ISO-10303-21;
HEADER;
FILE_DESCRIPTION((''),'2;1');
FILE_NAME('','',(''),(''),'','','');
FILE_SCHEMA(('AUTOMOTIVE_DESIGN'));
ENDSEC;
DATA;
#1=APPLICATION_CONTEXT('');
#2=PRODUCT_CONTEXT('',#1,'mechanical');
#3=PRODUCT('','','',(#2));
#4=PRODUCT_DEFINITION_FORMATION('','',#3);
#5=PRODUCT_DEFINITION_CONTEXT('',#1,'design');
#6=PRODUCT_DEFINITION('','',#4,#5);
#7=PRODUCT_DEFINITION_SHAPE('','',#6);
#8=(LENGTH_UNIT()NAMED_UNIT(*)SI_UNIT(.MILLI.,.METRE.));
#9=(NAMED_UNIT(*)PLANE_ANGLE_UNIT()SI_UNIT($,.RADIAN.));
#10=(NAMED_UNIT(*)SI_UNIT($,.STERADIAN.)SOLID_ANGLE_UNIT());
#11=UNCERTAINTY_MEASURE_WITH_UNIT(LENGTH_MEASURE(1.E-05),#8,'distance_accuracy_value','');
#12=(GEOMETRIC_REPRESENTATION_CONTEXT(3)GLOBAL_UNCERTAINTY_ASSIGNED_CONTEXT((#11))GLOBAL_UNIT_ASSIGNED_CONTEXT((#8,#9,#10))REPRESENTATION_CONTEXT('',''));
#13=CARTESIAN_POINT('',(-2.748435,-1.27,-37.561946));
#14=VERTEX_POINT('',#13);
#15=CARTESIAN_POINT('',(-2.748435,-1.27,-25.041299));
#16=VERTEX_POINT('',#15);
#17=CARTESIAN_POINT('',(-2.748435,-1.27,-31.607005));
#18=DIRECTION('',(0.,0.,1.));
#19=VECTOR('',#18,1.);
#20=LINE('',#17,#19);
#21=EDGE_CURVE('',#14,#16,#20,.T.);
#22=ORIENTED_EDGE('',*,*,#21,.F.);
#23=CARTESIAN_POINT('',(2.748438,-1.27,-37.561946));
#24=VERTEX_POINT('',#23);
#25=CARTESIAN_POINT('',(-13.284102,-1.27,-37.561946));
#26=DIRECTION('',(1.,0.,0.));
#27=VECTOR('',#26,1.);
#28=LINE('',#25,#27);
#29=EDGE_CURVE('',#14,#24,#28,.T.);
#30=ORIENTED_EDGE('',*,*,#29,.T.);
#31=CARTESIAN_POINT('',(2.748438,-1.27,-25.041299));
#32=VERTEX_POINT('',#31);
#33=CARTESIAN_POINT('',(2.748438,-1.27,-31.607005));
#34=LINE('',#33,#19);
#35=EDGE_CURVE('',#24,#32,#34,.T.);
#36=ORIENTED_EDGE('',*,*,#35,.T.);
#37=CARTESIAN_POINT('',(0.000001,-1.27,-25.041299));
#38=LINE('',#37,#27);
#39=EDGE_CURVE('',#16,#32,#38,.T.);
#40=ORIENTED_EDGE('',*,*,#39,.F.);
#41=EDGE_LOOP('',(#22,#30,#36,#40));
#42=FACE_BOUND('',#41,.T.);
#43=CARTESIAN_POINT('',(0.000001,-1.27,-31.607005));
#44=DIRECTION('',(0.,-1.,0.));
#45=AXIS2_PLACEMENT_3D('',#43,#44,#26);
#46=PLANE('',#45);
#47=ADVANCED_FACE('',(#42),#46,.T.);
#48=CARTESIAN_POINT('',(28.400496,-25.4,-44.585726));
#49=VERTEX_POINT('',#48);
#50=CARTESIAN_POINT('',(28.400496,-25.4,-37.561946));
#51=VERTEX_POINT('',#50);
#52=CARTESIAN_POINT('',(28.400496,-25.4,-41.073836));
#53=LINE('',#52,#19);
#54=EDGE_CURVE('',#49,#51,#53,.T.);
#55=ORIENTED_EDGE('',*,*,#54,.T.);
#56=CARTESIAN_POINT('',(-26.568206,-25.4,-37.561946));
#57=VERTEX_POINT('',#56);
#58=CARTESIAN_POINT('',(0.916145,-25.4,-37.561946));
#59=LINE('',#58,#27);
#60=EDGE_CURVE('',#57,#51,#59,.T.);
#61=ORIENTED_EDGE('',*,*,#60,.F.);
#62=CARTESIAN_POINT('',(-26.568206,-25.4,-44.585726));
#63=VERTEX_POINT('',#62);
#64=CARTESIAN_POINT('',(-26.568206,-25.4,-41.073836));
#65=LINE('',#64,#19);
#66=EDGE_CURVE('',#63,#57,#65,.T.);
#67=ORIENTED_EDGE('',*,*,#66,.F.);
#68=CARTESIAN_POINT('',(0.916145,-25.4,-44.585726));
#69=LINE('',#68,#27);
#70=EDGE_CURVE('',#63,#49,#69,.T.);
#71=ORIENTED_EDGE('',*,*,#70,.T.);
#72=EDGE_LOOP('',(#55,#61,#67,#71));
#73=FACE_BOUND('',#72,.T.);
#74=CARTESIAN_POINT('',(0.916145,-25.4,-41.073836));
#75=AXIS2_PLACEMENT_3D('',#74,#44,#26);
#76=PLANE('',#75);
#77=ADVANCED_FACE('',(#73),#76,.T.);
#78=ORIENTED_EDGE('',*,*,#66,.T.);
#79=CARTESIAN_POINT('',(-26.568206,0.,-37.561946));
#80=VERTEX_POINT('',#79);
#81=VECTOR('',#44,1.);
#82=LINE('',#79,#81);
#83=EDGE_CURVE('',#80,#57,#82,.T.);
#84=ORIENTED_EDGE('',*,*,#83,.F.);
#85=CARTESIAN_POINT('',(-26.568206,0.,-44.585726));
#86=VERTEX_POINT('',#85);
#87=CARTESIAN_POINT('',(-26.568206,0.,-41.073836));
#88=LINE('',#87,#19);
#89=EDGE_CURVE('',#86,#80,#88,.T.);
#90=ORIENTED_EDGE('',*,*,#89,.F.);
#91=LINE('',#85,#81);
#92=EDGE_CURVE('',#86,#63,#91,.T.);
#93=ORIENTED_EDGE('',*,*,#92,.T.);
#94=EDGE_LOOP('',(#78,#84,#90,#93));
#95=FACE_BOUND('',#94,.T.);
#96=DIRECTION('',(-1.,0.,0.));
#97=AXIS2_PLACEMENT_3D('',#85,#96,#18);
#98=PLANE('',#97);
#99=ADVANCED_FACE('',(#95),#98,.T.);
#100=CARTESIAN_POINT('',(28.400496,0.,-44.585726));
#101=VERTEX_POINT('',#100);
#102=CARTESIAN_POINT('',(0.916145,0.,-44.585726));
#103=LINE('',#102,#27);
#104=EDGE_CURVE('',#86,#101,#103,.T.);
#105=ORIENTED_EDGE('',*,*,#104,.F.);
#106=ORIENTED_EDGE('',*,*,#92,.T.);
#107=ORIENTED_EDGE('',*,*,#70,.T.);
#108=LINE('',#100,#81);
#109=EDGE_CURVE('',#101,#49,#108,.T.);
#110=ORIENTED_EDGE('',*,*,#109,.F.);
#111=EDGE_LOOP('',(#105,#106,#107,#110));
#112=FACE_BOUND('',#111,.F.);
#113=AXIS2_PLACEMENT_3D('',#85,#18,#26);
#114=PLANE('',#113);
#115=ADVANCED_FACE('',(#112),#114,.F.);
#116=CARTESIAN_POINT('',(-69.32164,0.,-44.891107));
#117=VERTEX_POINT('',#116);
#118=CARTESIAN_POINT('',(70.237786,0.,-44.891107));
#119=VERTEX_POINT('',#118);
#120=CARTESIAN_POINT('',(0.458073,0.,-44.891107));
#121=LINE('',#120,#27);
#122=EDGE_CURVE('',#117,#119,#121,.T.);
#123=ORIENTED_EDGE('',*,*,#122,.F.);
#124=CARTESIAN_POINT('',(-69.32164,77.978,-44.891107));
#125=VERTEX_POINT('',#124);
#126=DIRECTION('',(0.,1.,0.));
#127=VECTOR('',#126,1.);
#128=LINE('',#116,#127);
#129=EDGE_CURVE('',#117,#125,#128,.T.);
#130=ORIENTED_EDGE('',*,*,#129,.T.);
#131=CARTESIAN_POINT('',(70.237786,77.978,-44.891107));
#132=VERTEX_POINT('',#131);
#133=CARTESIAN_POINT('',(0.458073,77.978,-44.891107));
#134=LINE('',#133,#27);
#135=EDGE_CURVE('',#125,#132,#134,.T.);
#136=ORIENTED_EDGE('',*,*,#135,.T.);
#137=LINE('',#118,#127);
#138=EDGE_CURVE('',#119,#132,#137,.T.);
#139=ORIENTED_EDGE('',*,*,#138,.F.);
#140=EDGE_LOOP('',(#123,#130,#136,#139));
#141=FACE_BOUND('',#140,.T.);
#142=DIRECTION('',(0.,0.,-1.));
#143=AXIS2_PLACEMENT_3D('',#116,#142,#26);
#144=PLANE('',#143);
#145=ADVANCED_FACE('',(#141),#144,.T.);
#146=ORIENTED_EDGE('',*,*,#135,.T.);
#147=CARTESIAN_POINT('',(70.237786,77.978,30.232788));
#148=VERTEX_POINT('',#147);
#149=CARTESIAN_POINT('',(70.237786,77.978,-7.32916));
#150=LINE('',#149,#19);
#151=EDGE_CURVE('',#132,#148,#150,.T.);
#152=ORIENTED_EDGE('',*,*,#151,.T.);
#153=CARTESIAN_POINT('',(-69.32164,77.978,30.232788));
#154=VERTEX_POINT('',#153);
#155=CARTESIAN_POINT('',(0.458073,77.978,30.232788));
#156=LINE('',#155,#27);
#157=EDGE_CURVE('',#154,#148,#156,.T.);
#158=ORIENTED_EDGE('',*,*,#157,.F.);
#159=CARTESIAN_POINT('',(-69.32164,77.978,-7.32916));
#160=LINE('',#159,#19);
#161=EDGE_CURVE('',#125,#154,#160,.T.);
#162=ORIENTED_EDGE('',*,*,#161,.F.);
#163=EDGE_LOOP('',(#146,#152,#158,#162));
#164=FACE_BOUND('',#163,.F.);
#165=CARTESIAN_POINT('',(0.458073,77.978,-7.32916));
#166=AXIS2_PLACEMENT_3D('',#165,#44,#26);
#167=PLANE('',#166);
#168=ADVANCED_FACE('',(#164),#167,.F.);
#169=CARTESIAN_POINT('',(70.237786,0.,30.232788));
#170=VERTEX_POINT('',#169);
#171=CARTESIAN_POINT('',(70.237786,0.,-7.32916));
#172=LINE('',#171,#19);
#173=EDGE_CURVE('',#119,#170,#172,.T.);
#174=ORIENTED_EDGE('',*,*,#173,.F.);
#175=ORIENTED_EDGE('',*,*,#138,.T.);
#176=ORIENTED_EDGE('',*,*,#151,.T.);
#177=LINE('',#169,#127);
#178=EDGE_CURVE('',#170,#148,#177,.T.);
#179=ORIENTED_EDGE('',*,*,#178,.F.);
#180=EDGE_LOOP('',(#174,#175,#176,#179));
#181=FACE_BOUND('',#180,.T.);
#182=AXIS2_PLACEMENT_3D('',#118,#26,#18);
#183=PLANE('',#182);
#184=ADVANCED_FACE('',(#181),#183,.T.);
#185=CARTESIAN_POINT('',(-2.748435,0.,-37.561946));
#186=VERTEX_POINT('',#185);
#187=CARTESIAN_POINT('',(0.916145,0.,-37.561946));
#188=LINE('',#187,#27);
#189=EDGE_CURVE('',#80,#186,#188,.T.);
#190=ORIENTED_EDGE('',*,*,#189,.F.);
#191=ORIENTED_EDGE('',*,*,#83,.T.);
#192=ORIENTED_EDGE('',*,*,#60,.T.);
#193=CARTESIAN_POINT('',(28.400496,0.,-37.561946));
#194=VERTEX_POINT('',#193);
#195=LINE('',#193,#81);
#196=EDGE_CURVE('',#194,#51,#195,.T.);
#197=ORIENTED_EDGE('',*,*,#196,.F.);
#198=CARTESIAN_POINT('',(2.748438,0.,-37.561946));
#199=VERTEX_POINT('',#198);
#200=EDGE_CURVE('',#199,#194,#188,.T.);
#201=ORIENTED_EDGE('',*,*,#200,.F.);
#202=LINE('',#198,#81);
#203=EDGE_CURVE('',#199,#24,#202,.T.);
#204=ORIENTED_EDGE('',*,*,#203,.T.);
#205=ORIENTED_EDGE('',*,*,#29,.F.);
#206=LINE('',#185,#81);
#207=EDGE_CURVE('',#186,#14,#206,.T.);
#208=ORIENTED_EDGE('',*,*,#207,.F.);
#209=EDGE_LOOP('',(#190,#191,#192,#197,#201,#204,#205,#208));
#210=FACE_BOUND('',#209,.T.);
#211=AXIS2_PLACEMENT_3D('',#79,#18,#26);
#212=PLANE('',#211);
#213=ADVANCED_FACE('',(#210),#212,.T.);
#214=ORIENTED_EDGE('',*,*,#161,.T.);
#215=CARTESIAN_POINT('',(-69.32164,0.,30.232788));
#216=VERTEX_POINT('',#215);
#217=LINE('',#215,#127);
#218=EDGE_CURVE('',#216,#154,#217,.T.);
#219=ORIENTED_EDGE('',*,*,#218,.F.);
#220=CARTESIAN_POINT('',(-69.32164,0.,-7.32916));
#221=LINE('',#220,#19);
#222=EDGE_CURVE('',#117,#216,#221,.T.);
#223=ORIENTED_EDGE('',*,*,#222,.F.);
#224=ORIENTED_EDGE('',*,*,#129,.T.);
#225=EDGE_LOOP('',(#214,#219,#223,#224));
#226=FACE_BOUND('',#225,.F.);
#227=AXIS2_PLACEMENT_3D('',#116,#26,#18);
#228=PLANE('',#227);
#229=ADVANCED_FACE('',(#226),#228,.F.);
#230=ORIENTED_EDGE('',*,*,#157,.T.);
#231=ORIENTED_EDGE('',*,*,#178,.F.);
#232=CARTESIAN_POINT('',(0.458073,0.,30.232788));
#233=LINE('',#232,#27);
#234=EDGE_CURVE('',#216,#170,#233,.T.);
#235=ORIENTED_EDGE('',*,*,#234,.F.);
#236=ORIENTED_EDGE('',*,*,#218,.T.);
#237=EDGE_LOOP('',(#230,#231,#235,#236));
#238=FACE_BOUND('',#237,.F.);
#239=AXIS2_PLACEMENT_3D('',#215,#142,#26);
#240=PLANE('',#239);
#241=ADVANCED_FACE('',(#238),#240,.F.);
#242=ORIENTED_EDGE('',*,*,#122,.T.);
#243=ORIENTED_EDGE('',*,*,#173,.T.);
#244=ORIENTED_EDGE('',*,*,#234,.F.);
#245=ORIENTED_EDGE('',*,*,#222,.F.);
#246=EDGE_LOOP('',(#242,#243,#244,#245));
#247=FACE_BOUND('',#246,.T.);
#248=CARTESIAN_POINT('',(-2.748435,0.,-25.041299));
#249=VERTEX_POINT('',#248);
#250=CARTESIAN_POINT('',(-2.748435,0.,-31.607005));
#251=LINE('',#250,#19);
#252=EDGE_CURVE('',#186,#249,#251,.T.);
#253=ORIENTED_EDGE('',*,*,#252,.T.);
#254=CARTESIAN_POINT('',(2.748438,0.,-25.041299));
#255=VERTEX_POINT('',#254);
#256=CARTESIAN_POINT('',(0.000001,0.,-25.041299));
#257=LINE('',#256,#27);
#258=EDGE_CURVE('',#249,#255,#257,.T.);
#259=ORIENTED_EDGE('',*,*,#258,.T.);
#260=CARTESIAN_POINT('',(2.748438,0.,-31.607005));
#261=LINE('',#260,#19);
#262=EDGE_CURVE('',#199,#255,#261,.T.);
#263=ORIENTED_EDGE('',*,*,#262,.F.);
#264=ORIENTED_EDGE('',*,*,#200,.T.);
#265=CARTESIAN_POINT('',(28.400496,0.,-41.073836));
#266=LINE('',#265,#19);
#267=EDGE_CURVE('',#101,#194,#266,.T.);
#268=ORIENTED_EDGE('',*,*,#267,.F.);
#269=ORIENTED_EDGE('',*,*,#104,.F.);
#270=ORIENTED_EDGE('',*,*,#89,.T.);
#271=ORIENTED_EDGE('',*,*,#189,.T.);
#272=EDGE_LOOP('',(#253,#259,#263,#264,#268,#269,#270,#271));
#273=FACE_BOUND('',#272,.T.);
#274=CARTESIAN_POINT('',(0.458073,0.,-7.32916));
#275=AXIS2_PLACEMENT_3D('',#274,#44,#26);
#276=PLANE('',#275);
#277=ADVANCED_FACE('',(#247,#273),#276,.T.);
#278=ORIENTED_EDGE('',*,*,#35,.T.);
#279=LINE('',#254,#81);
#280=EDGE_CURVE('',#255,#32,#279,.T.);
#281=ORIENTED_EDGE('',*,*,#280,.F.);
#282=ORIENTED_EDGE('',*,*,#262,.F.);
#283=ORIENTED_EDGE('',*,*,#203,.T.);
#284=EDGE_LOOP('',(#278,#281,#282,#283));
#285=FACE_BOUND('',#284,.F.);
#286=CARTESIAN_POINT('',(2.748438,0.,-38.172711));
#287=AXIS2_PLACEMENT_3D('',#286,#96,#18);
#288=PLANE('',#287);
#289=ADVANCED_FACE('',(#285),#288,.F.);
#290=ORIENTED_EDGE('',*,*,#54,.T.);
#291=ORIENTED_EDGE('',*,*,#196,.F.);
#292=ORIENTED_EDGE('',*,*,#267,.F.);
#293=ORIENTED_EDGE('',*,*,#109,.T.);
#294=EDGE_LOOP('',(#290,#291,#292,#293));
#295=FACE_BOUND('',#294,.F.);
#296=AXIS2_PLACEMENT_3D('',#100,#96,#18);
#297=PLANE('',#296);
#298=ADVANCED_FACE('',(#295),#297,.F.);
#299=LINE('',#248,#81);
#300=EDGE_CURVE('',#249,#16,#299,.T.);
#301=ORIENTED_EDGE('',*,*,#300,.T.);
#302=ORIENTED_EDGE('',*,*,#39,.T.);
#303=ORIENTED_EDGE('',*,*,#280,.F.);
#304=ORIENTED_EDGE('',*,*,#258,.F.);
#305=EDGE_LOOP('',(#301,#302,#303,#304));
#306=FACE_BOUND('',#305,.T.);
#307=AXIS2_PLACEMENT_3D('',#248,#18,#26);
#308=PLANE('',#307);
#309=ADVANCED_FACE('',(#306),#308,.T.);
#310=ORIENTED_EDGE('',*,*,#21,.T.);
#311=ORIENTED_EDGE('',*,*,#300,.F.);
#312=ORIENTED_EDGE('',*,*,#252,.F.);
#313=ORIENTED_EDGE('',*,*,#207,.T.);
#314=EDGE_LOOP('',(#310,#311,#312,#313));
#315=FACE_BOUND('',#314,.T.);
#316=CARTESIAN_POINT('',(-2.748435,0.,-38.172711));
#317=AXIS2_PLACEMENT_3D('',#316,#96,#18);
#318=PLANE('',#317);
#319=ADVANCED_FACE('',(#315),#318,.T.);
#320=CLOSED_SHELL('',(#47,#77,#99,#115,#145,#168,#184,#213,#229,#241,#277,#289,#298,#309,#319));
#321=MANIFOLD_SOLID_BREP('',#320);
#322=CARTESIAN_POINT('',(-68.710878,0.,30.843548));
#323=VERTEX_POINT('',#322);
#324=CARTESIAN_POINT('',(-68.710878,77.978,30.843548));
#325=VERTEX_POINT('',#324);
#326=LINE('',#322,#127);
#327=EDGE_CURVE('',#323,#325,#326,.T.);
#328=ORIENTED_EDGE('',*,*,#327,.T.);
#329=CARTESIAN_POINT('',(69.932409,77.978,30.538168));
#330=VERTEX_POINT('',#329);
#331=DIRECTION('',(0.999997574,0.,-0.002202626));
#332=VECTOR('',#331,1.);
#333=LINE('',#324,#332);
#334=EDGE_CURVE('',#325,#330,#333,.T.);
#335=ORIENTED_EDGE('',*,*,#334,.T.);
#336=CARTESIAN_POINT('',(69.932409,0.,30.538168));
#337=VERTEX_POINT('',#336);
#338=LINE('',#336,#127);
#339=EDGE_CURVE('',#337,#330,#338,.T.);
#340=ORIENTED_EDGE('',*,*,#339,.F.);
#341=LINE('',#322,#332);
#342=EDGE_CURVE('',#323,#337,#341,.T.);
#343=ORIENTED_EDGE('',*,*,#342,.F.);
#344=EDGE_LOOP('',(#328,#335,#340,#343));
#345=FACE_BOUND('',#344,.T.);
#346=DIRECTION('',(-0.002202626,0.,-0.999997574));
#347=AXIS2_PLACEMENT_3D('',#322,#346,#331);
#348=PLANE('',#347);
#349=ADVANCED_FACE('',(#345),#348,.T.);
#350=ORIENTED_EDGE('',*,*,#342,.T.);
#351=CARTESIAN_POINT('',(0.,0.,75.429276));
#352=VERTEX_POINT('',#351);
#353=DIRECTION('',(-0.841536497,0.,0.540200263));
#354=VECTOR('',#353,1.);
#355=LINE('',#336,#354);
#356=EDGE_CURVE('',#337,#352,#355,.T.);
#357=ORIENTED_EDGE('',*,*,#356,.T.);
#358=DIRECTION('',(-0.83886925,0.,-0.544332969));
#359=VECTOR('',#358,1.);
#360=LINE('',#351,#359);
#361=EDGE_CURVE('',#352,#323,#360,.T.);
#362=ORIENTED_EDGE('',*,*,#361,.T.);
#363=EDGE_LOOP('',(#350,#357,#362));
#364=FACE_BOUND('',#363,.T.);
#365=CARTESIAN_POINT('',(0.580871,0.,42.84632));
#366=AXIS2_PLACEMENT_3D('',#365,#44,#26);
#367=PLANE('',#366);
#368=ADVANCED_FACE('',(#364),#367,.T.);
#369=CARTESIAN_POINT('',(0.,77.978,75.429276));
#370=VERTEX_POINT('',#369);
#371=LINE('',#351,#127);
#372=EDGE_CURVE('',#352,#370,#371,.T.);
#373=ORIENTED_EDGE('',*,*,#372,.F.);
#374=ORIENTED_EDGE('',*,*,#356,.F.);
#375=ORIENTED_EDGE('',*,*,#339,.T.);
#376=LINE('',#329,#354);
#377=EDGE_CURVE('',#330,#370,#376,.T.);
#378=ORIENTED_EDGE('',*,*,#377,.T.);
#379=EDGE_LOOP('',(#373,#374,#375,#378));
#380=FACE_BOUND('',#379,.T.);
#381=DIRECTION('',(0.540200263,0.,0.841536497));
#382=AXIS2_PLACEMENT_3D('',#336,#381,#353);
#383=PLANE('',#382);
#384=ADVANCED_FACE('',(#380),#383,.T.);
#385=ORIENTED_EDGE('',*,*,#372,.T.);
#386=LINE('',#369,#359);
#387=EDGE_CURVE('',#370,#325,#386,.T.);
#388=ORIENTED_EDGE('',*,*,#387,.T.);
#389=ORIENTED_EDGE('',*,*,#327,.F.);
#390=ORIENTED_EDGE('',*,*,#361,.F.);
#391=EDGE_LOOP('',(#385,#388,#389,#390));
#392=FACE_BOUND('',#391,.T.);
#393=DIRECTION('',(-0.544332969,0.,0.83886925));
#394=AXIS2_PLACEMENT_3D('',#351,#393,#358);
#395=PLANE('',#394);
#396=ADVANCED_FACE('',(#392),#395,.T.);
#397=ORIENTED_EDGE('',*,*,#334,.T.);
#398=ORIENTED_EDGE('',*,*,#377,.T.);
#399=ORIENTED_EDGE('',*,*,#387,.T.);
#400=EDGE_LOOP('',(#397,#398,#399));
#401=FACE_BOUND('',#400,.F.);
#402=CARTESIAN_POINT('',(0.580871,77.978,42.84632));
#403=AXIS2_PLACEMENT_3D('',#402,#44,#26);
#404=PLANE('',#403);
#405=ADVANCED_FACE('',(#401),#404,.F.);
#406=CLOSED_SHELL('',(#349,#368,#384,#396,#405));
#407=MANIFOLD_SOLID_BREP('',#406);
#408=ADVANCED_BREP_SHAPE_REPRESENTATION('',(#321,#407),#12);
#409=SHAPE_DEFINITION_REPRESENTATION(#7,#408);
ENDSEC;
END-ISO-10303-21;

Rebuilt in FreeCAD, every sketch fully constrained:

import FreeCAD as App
import Part
import Sketcher

V = App.Vector
Q = App.Units.Quantity

doc = App.newDocument("Part")
body = doc.addObject("PartDesign::Body", "Body")

sketch1 = body.newObject("Sketcher::SketchObject", "Sketch")
sketch1.AttachmentSupport = (doc.getObject("XZ_Plane"), [""])
sketch1.MapMode = "FlatFace"
sketch1.addGeometry(Part.LineSegment(V(-69, 30, 0), V(-69, -45, 0)), False)
sketch1.addGeometry(Part.LineSegment(V(-69, -45, 0), V(70, -45, 0)), False)
sketch1.addGeometry(Part.LineSegment(V(70, -45, 0), V(70, 30, 0)), False)
sketch1.addGeometry(Part.LineSegment(V(70, 30, 0), V(-69, 30, 0)), False)
sketch1.addConstraint(Sketcher.Constraint("Coincident", 0, 2, 1, 1))
sketch1.addConstraint(Sketcher.Constraint("Coincident", 1, 2, 2, 1))
sketch1.addConstraint(Sketcher.Constraint("Coincident", 2, 2, 3, 1))
sketch1.addConstraint(Sketcher.Constraint("Coincident", 3, 2, 0, 1))
sketch1.addConstraint(Sketcher.Constraint("Vertical", 0))
sketch1.addConstraint(Sketcher.Constraint("Horizontal", 1))
sketch1.addConstraint(Sketcher.Constraint("Vertical", 2))
sketch1.addConstraint(Sketcher.Constraint("Horizontal", 3))
sketch1.addConstraint(Sketcher.Constraint("DistanceX", 1, 1, 1, 2, 139.559426))
sketch1.addConstraint(Sketcher.Constraint("DistanceY", 0, 2, 0, 1, 75.123895))
sketch1.addConstraint(Sketcher.Constraint("DistanceX", 0, 2, -1, 1, 69.32164))
sketch1.addConstraint(Sketcher.Constraint("DistanceY", 0, 2, -1, 1, 44.891107))
pad1 = body.newObject("PartDesign::Pad", "Pad")
pad1.Profile = sketch1
pad1.Length = Q("3.07 in")
pad1.Reversed = True

sketch2 = body.newObject("Sketcher::SketchObject", "Sketch001")
sketch2.AttachmentSupport = (doc.getObject("XZ_Plane"), [""])
sketch2.MapMode = "FlatFace"
sketch2.addGeometry(Part.LineSegment(V(-27, -38, 0), V(-27, -45, 0)), False)
sketch2.addGeometry(Part.LineSegment(V(-27, -45, 0), V(28, -45, 0)), False)
sketch2.addGeometry(Part.LineSegment(V(28, -45, 0), V(28, -38, 0)), False)
sketch2.addGeometry(Part.LineSegment(V(28, -38, 0), V(-27, -38, 0)), False)
sketch2.addConstraint(Sketcher.Constraint("Coincident", 0, 2, 1, 1))
sketch2.addConstraint(Sketcher.Constraint("Coincident", 1, 2, 2, 1))
sketch2.addConstraint(Sketcher.Constraint("Coincident", 2, 2, 3, 1))
sketch2.addConstraint(Sketcher.Constraint("Coincident", 3, 2, 0, 1))
sketch2.addConstraint(Sketcher.Constraint("Vertical", 0))
sketch2.addConstraint(Sketcher.Constraint("Horizontal", 1))
sketch2.addConstraint(Sketcher.Constraint("Vertical", 2))
sketch2.addConstraint(Sketcher.Constraint("Horizontal", 3))
sketch2.addConstraint(Sketcher.Constraint("DistanceY", 0, 2, 0, 1, 7.023781))
sketch2.addConstraint(Sketcher.Constraint("DistanceX", 1, 1, 1, 2, 54.968702))
sketch2.addConstraint(Sketcher.Constraint("DistanceX", 0, 2, -1, 1, 26.568206))
sketch2.addConstraint(Sketcher.Constraint("DistanceY", 0, 2, -1, 1, 44.585726))
pad2 = body.newObject("PartDesign::Pad", "Pad001")
pad2.Profile = sketch2
pad2.Length = Q("1 in")

sketch3 = body.newObject("Sketcher::SketchObject", "Sketch002")
sketch3.AttachmentSupport = (doc.getObject("XZ_Plane"), [""])
sketch3.MapMode = "FlatFace"
sketch3.addGeometry(Part.LineSegment(V(-3, -25, 0), V(-3, -38, 0)), False)
sketch3.addGeometry(Part.LineSegment(V(-3, -38, 0), V(3, -38, 0)), False)
sketch3.addGeometry(Part.LineSegment(V(3, -38, 0), V(3, -25, 0)), False)
sketch3.addGeometry(Part.LineSegment(V(3, -25, 0), V(-3, -25, 0)), False)
sketch3.addConstraint(Sketcher.Constraint("Coincident", 0, 2, 1, 1))
sketch3.addConstraint(Sketcher.Constraint("Coincident", 1, 2, 2, 1))
sketch3.addConstraint(Sketcher.Constraint("Coincident", 2, 2, 3, 1))
sketch3.addConstraint(Sketcher.Constraint("Coincident", 3, 2, 0, 1))
sketch3.addConstraint(Sketcher.Constraint("Vertical", 0))
sketch3.addConstraint(Sketcher.Constraint("Horizontal", 1))
sketch3.addConstraint(Sketcher.Constraint("Vertical", 2))
sketch3.addConstraint(Sketcher.Constraint("Horizontal", 3))
sketch3.addConstraint(Sketcher.Constraint("DistanceY", 2, 2, -1, 1, 25.041299))
sketch3.addConstraint(Sketcher.Constraint("DistanceX", 1, 1, 1, 2, 5.496873))
sketch3.addConstraint(Sketcher.Constraint("DistanceY", 0, 2, 0, 1, 13.131412))
sketch3.addConstraint(Sketcher.Constraint("DistanceX", 0, 2, -1, 1, 2.748435))
pad3 = body.newObject("PartDesign::Pad", "Pad002")
pad3.Profile = sketch3
pad3.Length = Q("0.05 in")
body2 = doc.addObject("PartDesign::Body", "Body001")

sketch4 = body2.newObject("Sketcher::SketchObject", "Sketch003")
sketch4.AttachmentSupport = (doc.getObject("XZ_Plane001"), [""])
sketch4.MapMode = "FlatFace"
sketch4.addGeometry(Part.LineSegment(V(0, 75, 0), V(-69, 31, 0)), False)
sketch4.addGeometry(Part.LineSegment(V(-69, 31, 0), V(70, 31, 0)), False)
sketch4.addGeometry(Part.LineSegment(V(70, 31, 0), V(0, 75, 0)), False)
sketch4.addConstraint(Sketcher.Constraint("Coincident", 0, 2, 1, 1))
sketch4.addConstraint(Sketcher.Constraint("Coincident", 1, 2, 2, 1))
sketch4.addConstraint(Sketcher.Constraint("Coincident", 2, 2, 0, 1))
sketch4.addConstraint(Sketcher.Constraint("PointOnObject", 2, 2, -2))
sketch4.addConstraint(Sketcher.Constraint("DistanceX", -1, 1, 1, 2, 69.932409))
sketch4.addConstraint(Sketcher.Constraint("DistanceY", 1, 2, 0, 2, 0.30538))
sketch4.addConstraint(Sketcher.Constraint("DistanceY", 0, 2, 2, 2, 44.585728))
sketch4.addConstraint(Sketcher.Constraint("Distance", 0, 81.908924))
sketch4.addConstraint(Sketcher.Constraint("DistanceY", -1, 1, 0, 2, 30.843548))
pad4 = body2.newObject("PartDesign::Pad", "Pad003")
pad4.Profile = sketch4
pad4.Length = Q("3.07 in")
pad4.Reversed = True

doc.recompute()
